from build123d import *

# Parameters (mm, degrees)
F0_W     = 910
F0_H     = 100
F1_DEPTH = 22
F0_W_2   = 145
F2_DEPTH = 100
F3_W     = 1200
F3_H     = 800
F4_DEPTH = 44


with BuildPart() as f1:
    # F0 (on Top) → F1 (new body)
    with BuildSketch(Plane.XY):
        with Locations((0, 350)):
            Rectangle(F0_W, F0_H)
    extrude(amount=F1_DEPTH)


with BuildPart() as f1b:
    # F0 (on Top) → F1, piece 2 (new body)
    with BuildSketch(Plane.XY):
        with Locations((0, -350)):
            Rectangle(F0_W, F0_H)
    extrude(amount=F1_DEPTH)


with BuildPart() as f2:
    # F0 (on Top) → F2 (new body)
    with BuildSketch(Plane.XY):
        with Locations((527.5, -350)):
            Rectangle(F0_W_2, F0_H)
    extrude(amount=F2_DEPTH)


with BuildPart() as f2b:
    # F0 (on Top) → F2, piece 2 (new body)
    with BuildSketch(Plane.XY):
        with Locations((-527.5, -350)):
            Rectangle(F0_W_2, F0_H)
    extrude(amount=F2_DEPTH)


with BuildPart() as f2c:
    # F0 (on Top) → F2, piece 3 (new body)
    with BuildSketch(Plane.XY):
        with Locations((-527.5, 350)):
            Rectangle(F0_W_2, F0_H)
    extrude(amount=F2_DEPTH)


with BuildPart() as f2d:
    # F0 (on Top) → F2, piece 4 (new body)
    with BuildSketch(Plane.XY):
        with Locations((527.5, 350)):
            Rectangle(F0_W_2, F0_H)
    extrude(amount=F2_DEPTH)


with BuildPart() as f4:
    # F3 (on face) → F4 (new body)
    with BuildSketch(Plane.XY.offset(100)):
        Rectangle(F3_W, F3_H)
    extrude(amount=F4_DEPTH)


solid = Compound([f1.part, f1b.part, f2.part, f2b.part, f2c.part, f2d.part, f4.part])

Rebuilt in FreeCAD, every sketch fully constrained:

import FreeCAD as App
import Part
import Sketcher
from FreeCAD import Vector

doc = App.newDocument("Part")
body = doc.addObject("PartDesign::Body", "Body")

sketch1 = body.newObject("Sketcher::SketchObject", "Sketch")
sketch1.AttachmentSupport = (doc.getObject("XY_Plane"), [""])
sketch1.MapMode = "FlatFace"
sketch1.addGeometry(Part.LineSegment(Vector(-455, 400, 0), Vector(-455, 300, 0)), False)
sketch1.addGeometry(Part.LineSegment(Vector(-455, 300, 0), Vector(455, 300, 0)), False)
sketch1.addGeometry(Part.LineSegment(Vector(455, 300, 0), Vector(455, 400, 0)), False)
sketch1.addGeometry(Part.LineSegment(Vector(455, 400, 0), Vector(-455, 400, 0)), False)
sketch1.addConstraint(Sketcher.Constraint("Coincident", 0, 2, 1, 1))
sketch1.addConstraint(Sketcher.Constraint("Coincident", 1, 2, 2, 1))
sketch1.addConstraint(Sketcher.Constraint("Coincident", 2, 2, 3, 1))
sketch1.addConstraint(Sketcher.Constraint("Coincident", 3, 2, 0, 1))
sketch1.addConstraint(Sketcher.Constraint("Vertical", 0))
sketch1.addConstraint(Sketcher.Constraint("Horizontal", 1))
sketch1.addConstraint(Sketcher.Constraint("Vertical", 2))
sketch1.addConstraint(Sketcher.Constraint("Horizontal", 3))
sketch1.addConstraint(Sketcher.Constraint("DistanceX", 1, 1, 1, 2, 910.0))
sketch1.addConstraint(Sketcher.Constraint("DistanceY", 0, 2, 0, 1, 100.0))
sketch1.addConstraint(Sketcher.Constraint("DistanceX", 0, 2, -1, 1, 455.0))
sketch1.addConstraint(Sketcher.Constraint("DistanceY", -1, 1, 0, 2, 300.0))
pad1 = body.newObject("PartDesign::Pad", "Pad")
pad1.Profile = sketch1
pad1.Length = 22
body2 = doc.addObject("PartDesign::Body", "Body001")

sketch2 = body2.newObject("Sketcher::SketchObject", "Sketch001")
sketch2.AttachmentSupport = (doc.getObject("XY_Plane001"), [""])
sketch2.MapMode = "FlatFace"
sketch2.addGeometry(Part.LineSegment(Vector(-455, -300, 0), Vector(-455, -400, 0)), False)
sketch2.addGeometry(Part.LineSegment(Vector(-455, -400, 0), Vector(455, -400, 0)), False)
sketch2.addGeometry(Part.LineSegment(Vector(455, -400, 0), Vector(455, -300, 0)), False)
sketch2.addGeometry(Part.LineSegment(Vector(455, -300, 0), Vector(-455, -300, 0)), False)
sketch2.addConstraint(Sketcher.Constraint("Coincident", 0, 2, 1, 1))
sketch2.addConstraint(Sketcher.Constraint("Coincident", 1, 2, 2, 1))
sketch2.addConstraint(Sketcher.Constraint("Coincident", 2, 2, 3, 1))
sketch2.addConstraint(Sketcher.Constraint("Coincident", 3, 2, 0, 1))
sketch2.addConstraint(Sketcher.Constraint("Vertical", 0))
sketch2.addConstraint(Sketcher.Constraint("Horizontal", 1))
sketch2.addConstraint(Sketcher.Constraint("Vertical", 2))
sketch2.addConstraint(Sketcher.Constraint("Horizontal", 3))
sketch2.addConstraint(Sketcher.Constraint("DistanceX", 1, 1, 1, 2, 910.0))
sketch2.addConstraint(Sketcher.Constraint("DistanceY", 0, 2, 0, 1, 100.0))
sketch2.addConstraint(Sketcher.Constraint("DistanceX", 0, 2, -1, 1, 455.0))
sketch2.addConstraint(Sketcher.Constraint("DistanceY", 0, 2, -1, 1, 400.0))
pad2 = body2.newObject("PartDesign::Pad", "Pad001")
pad2.Profile = sketch2
pad2.Length = 22
body3 = doc.addObject("PartDesign::Body", "Body002")

sketch3 = body3.newObject("Sketcher::SketchObject", "Sketch002")
sketch3.AttachmentSupport = (doc.getObject("XY_Plane002"), [""])
sketch3.MapMode = "FlatFace"
sketch3.addGeometry(Part.LineSegment(Vector(455, -300, 0), Vector(455, -400, 0)), False)
sketch3.addGeometry(Part.LineSegment(Vector(455, -400, 0), Vector(600, -400, 0)), False)
sketch3.addGeometry(Part.LineSegment(Vector(600, -400, 0), Vector(600, -300, 0)), False)
sketch3.addGeometry(Part.LineSegment(Vector(600, -300, 0), Vector(455, -300, 0)), False)
sketch3.addConstraint(Sketcher.Constraint("Coincident", 0, 2, 1, 1))
sketch3.addConstraint(Sketcher.Constraint("Coincident", 1, 2, 2, 1))
sketch3.addConstraint(Sketcher.Constraint("Coincident", 2, 2, 3, 1))
sketch3.addConstraint(Sketcher.Constraint("Coincident", 3, 2, 0, 1))
sketch3.addConstraint(Sketcher.Constraint("Vertical", 0))
sketch3.addConstraint(Sketcher.Constraint("Horizontal", 1))
sketch3.addConstraint(Sketcher.Constraint("Vertical", 2))
sketch3.addConstraint(Sketcher.Constraint("Horizontal", 3))
sketch3.addConstraint(Sketcher.Constraint("DistanceX", 1, 1, 1, 2, 145.0))
sketch3.addConstraint(Sketcher.Constraint("DistanceY", 0, 2, 0, 1, 100.0))
sketch3.addConstraint(Sketcher.Constraint("DistanceX", -1, 1, 0, 2, 455.0))
sketch3.addConstraint(Sketcher.Constraint("DistanceY", 0, 2, -1, 1, 400.0))
pad3 = body3.newObject("PartDesign::Pad", "Pad002")
pad3.Profile = sketch3
pad3.Length = 100
body4 = doc.addObject("PartDesign::Body", "Body003")

sketch4 = body4.newObject("Sketcher::SketchObject", "Sketch003")
sketch4.AttachmentSupport = (doc.getObject("XY_Plane003"), [""])
sketch4.MapMode = "FlatFace"
sketch4.addGeometry(Part.LineSegment(Vector(-600, -300, 0), Vector(-600, -400, 0)), False)
sketch4.addGeometry(Part.LineSegment(Vector(-600, -400, 0), Vector(-455, -400, 0)), False)
sketch4.addGeometry(Part.LineSegment(Vector(-455, -400, 0), Vector(-455, -300, 0)), False)
sketch4.addGeometry(Part.LineSegment(Vector(-455, -300, 0), Vector(-600, -300, 0)), False)
sketch4.addConstraint(Sketcher.Constraint("Coincident", 0, 2, 1, 1))
sketch4.addConstraint(Sketcher.Constraint("Coincident", 1, 2, 2, 1))
sketch4.addConstraint(Sketcher.Constraint("Coincident", 2, 2, 3, 1))
sketch4.addConstraint(Sketcher.Constraint("Coincident", 3, 2, 0, 1))
sketch4.addConstraint(Sketcher.Constraint("Vertical", 0))
sketch4.addConstraint(Sketcher.Constraint("Horizontal", 1))
sketch4.addConstraint(Sketcher.Constraint("Vertical", 2))
sketch4.addConstraint(Sketcher.Constraint("Horizontal", 3))
sketch4.addConstraint(Sketcher.Constraint("DistanceX", 1, 1, 1, 2, 145.0))
sketch4.addConstraint(Sketcher.Constraint("DistanceY", 0, 2, 0, 1, 100.0))
sketch4.addConstraint(Sketcher.Constraint("DistanceX", 0, 2, -1, 1, 600.0))
sketch4.addConstraint(Sketcher.Constraint("DistanceY", 0, 2, -1, 1, 400.0))
pad4 = body4.newObject("PartDesign::Pad", "Pad003")
pad4.Profile = sketch4
pad4.Length = 100
body5 = doc.addObject("PartDesign::Body", "Body004")

sketch5 = body5.newObject("Sketcher::SketchObject", "Sketch004")
sketch5.AttachmentSupport = (doc.getObject("XY_Plane004"), [""])
sketch5.MapMode = "FlatFace"
sketch5.addGeometry(Part.LineSegment(Vector(-600, 400, 0), Vector(-600, 300, 0)), False)
sketch5.addGeometry(Part.LineSegment(Vector(-600, 300, 0), Vector(-455, 300, 0)), False)
sketch5.addGeometry(Part.LineSegment(Vector(-455, 300, 0), Vector(-455, 400, 0)), False)
sketch5.addGeometry(Part.LineSegment(Vector(-455, 400, 0), Vector(-600, 400, 0)), False)
sketch5.addConstraint(Sketcher.Constraint("Coincident", 0, 2, 1, 1))
sketch5.addConstraint(Sketcher.Constraint("Coincident", 1, 2, 2, 1))
sketch5.addConstraint(Sketcher.Constraint("Coincident", 2, 2, 3, 1))
sketch5.addConstraint(Sketcher.Constraint("Coincident", 3, 2, 0, 1))
sketch5.addConstraint(Sketcher.Constraint("Vertical", 0))
sketch5.addConstraint(Sketcher.Constraint("Horizontal", 1))
sketch5.addConstraint(Sketcher.Constraint("Vertical", 2))
sketch5.addConstraint(Sketcher.Constraint("Horizontal", 3))
sketch5.addConstraint(Sketcher.Constraint("DistanceX", 1, 1, 1, 2, 145.0))
sketch5.addConstraint(Sketcher.Constraint("DistanceY", 0, 2, 0, 1, 100.0))
sketch5.addConstraint(Sketcher.Constraint("DistanceX", 0, 2, -1, 1, 600.0))
sketch5.addConstraint(Sketcher.Constraint("DistanceY", -1, 1, 0, 2, 300.0))
pad5 = body5.newObject("PartDesign::Pad", "Pad004")
pad5.Profile = sketch5
pad5.Length = 100
body6 = doc.addObject("PartDesign::Body", "Body005")

sketch6 = body6.newObject("Sketcher::SketchObject", "Sketch005")
sketch6.AttachmentSupport = (doc.getObject("XY_Plane005"), [""])
sketch6.MapMode = "FlatFace"
sketch6.addGeometry(Part.LineSegment(Vector(455, 400, 0), Vector(455, 300, 0)), False)
sketch6.addGeometry(Part.LineSegment(Vector(455, 300, 0), Vector(600, 300, 0)), False)
sketch6.addGeometry(Part.LineSegment(Vector(600, 300, 0), Vector(600, 400, 0)), False)
sketch6.addGeometry(Part.LineSegment(Vector(600, 400, 0), Vector(455, 400, 0)), False)
sketch6.addConstraint(Sketcher.Constraint("Coincident", 0, 2, 1, 1))
sketch6.addConstraint(Sketcher.Constraint("Coincident", 1, 2, 2, 1))
sketch6.addConstraint(Sketcher.Constraint("Coincident", 2, 2, 3, 1))
sketch6.addConstraint(Sketcher.Constraint("Coincident", 3, 2, 0, 1))
sketch6.addConstraint(Sketcher.Constraint("Vertical", 0))
sketch6.addConstraint(Sketcher.Constraint("Horizontal", 1))
sketch6.addConstraint(Sketcher.Constraint("Vertical", 2))
sketch6.addConstraint(Sketcher.Constraint("Horizontal", 3))
sketch6.addConstraint(Sketcher.Constraint("DistanceX", 1, 1, 1, 2, 145.0))
sketch6.addConstraint(Sketcher.Constraint("DistanceY", 0, 2, 0, 1, 100.0))
sketch6.addConstraint(Sketcher.Constraint("DistanceX", -1, 1, 0, 2, 455.0))
sketch6.addConstraint(Sketcher.Constraint("DistanceY", -1, 1, 0, 2, 300.0))
pad6 = body6.newObject("PartDesign::Pad", "Pad005")
pad6.Profile = sketch6
pad6.Length = 100
body7 = doc.addObject("PartDesign::Body", "Body006")

sketch7 = body7.newObject("Sketcher::SketchObject", "Sketch006")
sketch7.AttachmentSupport = (doc.getObject("XY_Plane006"), [""])
sketch7.MapMode = "FlatFace"
sketch7.AttachmentOffset = App.Placement(Vector(0, 0, 100), App.Rotation())
sketch7.addGeometry(Part.LineSegment(Vector(-600, 400, 0), Vector(-600, -400, 0)), False)
sketch7.addGeometry(Part.LineSegment(Vector(-600, -400, 0), Vector(600, -400, 0)), False)
sketch7.addGeometry(Part.LineSegment(Vector(600, -400, 0), Vector(600, 400, 0)), False)
sketch7.addGeometry(Part.LineSegment(Vector(600, 400, 0), Vector(-600, 400, 0)), False)
sketch7.addConstraint(Sketcher.Constraint("Coincident", 0, 2, 1, 1))
sketch7.addConstraint(Sketcher.Constraint("Coincident", 1, 2, 2, 1))
sketch7.addConstraint(Sketcher.Constraint("Coincident", 2, 2, 3, 1))
sketch7.addConstraint(Sketcher.Constraint("Coincident", 3, 2, 0, 1))
sketch7.addConstraint(Sketcher.Constraint("Vertical", 0))
sketch7.addConstraint(Sketcher.Constraint("Horizontal", 1))
sketch7.addConstraint(Sketcher.Constraint("Vertical", 2))
sketch7.addConstraint(Sketcher.Constraint("Horizontal", 3))
sketch7.addConstraint(Sketcher.Constraint("Symmetric", 0, 2, 2, 2, -1, 1))
sketch7.addConstraint(Sketcher.Constraint("DistanceX", 1, 1, 1, 2, 1200.0))
sketch7.addConstraint(Sketcher.Constraint("DistanceY", 0, 2, 0, 1, 800.0))
pad7 = body7.newObject("PartDesign::Pad", "Pad006")
pad7.Profile = sketch7
pad7.Length = 44

doc.recompute()
